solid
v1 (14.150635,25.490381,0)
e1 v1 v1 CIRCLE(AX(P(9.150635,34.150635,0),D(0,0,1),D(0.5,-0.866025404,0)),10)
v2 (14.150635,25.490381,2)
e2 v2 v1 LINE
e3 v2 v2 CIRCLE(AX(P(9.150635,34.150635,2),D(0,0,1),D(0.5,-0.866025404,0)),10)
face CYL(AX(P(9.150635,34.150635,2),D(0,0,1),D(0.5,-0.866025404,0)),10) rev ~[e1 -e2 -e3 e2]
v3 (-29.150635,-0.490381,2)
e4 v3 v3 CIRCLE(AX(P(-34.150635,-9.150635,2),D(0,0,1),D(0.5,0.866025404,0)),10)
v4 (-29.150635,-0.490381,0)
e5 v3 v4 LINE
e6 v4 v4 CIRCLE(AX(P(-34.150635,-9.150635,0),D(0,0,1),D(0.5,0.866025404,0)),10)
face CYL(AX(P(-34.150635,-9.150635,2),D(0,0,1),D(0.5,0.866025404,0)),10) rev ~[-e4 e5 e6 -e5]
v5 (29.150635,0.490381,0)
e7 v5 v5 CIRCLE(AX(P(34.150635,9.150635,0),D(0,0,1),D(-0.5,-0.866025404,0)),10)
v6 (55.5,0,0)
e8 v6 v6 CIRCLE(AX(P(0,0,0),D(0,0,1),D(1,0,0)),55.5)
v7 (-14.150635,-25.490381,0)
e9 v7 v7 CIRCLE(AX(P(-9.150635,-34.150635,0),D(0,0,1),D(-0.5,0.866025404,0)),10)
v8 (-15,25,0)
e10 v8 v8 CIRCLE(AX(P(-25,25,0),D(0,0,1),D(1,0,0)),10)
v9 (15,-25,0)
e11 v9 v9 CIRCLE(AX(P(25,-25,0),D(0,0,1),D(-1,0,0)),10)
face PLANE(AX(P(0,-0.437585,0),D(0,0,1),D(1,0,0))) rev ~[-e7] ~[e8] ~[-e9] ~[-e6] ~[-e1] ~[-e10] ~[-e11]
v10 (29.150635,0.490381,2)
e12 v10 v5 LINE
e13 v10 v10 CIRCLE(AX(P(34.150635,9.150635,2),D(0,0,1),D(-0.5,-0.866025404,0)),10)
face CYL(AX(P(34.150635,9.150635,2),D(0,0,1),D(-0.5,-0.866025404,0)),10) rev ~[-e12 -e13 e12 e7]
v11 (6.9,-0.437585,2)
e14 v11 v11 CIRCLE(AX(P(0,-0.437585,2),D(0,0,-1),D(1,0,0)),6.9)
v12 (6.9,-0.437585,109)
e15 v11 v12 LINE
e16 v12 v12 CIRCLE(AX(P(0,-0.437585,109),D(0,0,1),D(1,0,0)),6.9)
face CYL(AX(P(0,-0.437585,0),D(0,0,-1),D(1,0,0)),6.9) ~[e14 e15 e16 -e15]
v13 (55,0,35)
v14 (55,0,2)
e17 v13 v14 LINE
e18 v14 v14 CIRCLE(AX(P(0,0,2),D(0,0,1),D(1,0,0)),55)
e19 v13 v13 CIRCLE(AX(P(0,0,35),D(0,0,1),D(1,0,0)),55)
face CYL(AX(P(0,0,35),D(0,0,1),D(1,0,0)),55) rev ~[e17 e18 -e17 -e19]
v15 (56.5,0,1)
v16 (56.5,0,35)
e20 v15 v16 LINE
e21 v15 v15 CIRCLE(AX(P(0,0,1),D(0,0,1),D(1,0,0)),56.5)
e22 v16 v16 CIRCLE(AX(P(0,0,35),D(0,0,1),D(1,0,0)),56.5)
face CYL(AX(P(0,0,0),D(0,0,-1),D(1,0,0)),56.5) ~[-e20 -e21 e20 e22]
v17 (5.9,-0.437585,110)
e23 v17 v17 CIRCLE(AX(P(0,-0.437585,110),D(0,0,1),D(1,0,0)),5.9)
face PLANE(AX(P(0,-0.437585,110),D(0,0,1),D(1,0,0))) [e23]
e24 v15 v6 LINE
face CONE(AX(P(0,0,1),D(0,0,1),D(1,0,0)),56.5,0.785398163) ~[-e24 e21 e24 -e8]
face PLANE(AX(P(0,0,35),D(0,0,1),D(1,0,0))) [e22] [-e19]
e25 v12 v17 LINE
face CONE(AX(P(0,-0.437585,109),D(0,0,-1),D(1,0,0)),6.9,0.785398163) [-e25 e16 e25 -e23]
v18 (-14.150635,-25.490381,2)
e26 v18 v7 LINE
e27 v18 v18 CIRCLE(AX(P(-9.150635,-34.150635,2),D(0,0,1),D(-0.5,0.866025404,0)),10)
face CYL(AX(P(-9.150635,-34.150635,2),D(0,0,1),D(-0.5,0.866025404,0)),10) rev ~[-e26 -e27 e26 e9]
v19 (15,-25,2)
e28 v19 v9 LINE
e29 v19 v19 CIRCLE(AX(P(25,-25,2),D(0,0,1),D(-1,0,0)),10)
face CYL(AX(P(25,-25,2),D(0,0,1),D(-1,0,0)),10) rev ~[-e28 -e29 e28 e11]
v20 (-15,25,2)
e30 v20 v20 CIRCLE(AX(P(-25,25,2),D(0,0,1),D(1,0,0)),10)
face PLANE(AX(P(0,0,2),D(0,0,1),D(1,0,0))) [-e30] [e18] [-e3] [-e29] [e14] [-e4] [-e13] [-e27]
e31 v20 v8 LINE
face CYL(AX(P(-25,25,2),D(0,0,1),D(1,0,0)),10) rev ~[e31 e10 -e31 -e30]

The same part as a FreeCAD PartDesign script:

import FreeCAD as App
import Part
import Sketcher


def edges_at(feature, points):
    """Names of the edges that pass closest to the given points."""
    edges = feature.Shape.Edges
    near = lambda p: min(range(len(edges)), key=lambda i: edges[i].distToShape(Part.Vertex(*p))[0])
    return sorted({f"Edge{near(p) + 1}" for p in points})

doc = App.newDocument("Part")
body = doc.addObject("PartDesign::Body", "Body")

sketch1 = body.newObject("Sketcher::SketchObject", "Sketch")
sketch1.AttachmentSupport = (doc.getObject("XY_Plane"), [""])
sketch1.MapMode = "FlatFace"
sketch1.addGeometry(Part.Circle(App.Vector(0, 0, 0), App.Vector(0, 0, 1), 56), False)
sketch1.addConstraint([
    Sketcher.Constraint("Coincident", 0, 3, -1, 1),
    Sketcher.Constraint("Diameter", 0, 113.0),
])
pad1 = body.newObject("PartDesign::Pad", "Pad")
pad1.Profile = sketch1
pad1.Length = 35

sketch2 = body.newObject("Sketcher::SketchObject", "Sketch001")
sketch2.AttachmentSupport = (doc.getObject("XY_Plane"), [""])
sketch2.MapMode = "FlatFace"
sketch2.AttachmentOffset = App.Placement(App.Vector(0, 0, 35), App.Rotation())
sketch2.addGeometry(Part.Circle(App.Vector(0, 0, 0), App.Vector(0, 0, 1), 55), False)
sketch2.addConstraint([
    Sketcher.Constraint("Coincident", 0, 3, -1, 1),
    Sketcher.Constraint("Diameter", 0, 110.0),
])
pocket1 = body.newObject("PartDesign::Pocket", "Pocket")
pocket1.Profile = sketch2
pocket1.Length = 33

sketch3 = body.newObject("Sketcher::SketchObject", "Sketch002")
sketch3.AttachmentSupport = (doc.getObject("XY_Plane"), [""])
sketch3.MapMode = "FlatFace"
sketch3.addGeometry(Part.Circle(App.Vector(0, 0, 0), App.Vector(0, 0, 1), 7), False)
sketch3.addConstraint([
    Sketcher.Constraint("PointOnObject", 0, 3, -2),
    Sketcher.Constraint("Diameter", 0, 13.8),
    Sketcher.Constraint("DistanceY", 0, 3, -1, 1, 0.437585),
])
pad2 = body.newObject("PartDesign::Pad", "Pad001")
pad2.Profile = sketch3
pad2.Length = 110
doc.recompute()

chamfer = body.newObject("PartDesign::Chamfer", "Chamfer")
chamfer.Base = (pad2, edges_at(pad2, [(-6.9, -0.438, 110)]))
chamfer.Size = 1
doc.recompute()

chamfer2 = body.newObject("PartDesign::Chamfer", "Chamfer001")
chamfer2.Base = (chamfer, edges_at(chamfer, [(-56.5, 0, 0)]))
chamfer2.Size = 1

sketch4 = body.newObject("Sketcher::SketchObject", "Sketch003")
sketch4.AttachmentSupport = (doc.getObject("XY_Plane"), [""])
sketch4.MapMode = "FlatFace"
sketch4.AttachmentOffset = App.Placement(App.Vector(0, 0, 2), App.Rotation())
sketch4.addGeometry(Part.Circle(App.Vector(-25, 25, 0), App.Vector(0, 0, 1), 10), False)
sketch4.addConstraint([
    Sketcher.Constraint("Diameter", 0, 20.0),
    Sketcher.Constraint("DistanceX", 0, 3, -1, 1, 25.0),
    Sketcher.Constraint("DistanceY", -1, 1, 0, 3, 25.0),
])
pocket2 = body.newObject("PartDesign::Pocket", "Pocket001")
pocket2.Profile = sketch4
pocket2.Length = 5
doc.recompute()

polarpattern = body.newObject("PartDesign::PolarPattern", "PolarPattern")
polarpattern.Originals = [pocket2]
polarpattern.Axis = (doc.getObject("Z_Axis"), [""])
polarpattern.Angle = 360
polarpattern.Occurrences = 6
body.Tip = polarpattern

doc.recompute()
